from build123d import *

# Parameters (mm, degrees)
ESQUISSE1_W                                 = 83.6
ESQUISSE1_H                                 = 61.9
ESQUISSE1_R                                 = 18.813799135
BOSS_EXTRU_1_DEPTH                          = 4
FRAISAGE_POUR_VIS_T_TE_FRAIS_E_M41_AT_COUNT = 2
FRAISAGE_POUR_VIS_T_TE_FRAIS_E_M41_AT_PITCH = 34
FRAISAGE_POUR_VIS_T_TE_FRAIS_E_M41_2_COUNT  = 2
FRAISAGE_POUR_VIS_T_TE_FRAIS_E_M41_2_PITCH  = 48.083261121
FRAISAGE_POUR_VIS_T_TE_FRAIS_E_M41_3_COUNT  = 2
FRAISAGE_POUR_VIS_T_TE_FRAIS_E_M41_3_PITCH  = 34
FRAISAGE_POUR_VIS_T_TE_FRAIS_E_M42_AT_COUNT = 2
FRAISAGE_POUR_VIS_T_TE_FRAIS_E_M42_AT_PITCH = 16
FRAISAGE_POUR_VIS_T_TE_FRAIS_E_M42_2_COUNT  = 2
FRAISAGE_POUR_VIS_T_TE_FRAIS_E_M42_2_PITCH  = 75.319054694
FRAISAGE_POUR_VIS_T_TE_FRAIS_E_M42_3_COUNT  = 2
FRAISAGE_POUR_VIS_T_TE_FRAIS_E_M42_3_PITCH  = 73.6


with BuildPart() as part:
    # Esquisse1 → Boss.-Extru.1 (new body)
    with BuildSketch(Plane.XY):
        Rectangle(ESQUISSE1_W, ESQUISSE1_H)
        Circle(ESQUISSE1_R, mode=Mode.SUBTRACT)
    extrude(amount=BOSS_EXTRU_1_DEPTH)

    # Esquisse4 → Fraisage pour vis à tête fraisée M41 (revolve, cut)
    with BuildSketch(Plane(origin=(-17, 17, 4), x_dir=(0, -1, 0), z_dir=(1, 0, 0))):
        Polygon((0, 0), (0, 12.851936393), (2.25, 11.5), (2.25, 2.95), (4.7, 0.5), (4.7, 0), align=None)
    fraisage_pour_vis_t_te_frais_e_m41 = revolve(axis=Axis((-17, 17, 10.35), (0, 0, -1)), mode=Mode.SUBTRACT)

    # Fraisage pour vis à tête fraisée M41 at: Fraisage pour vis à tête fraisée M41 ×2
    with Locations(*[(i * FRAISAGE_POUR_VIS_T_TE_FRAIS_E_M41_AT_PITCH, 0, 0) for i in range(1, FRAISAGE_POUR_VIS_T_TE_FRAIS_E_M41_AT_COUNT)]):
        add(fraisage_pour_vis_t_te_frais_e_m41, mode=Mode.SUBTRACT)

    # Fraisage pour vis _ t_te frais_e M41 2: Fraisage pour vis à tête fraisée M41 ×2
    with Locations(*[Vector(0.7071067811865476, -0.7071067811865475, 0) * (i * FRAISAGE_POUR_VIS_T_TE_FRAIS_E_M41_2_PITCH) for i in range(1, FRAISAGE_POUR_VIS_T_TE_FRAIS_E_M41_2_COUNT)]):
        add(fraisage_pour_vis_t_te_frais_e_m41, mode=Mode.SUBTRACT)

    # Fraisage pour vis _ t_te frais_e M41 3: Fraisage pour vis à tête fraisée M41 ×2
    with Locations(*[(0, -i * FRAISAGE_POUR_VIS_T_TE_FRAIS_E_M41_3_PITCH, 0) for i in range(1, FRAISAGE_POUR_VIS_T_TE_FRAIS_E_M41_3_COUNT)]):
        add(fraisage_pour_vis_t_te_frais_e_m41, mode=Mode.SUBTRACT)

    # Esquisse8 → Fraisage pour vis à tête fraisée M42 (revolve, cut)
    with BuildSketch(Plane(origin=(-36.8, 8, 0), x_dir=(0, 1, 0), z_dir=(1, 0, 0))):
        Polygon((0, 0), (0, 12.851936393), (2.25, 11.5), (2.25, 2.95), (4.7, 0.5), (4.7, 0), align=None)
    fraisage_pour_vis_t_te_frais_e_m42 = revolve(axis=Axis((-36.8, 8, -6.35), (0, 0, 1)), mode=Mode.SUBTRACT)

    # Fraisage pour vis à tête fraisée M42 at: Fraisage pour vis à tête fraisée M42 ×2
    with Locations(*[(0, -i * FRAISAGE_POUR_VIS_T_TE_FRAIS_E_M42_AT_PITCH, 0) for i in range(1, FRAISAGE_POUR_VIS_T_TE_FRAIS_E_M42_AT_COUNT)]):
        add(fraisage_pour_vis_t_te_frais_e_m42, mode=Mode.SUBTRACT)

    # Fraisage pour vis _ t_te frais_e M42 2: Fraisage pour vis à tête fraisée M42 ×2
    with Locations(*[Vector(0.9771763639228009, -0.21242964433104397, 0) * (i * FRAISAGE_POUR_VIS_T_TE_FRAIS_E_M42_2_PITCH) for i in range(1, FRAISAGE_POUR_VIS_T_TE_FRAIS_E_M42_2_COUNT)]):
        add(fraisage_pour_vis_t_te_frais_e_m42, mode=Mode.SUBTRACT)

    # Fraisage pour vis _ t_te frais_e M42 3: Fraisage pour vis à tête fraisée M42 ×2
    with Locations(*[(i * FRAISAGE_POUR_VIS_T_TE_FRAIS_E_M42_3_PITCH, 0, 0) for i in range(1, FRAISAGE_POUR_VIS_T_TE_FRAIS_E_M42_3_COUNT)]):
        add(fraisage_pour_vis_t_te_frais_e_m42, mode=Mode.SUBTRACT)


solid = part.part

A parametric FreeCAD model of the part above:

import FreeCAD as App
import Part
import Sketcher
Q = App.Units.Quantity


def add_polygon(sketch, points):
    """Adds a closed chain of lines whose ends are joined by coincident constraints."""
    first, n = sketch.GeometryCount, len(points)
    for a, b in zip(points, points[1:] + points[:1]):
        sketch.addGeometry(Part.LineSegment(App.Vector(*a, 0), App.Vector(*b, 0)), False)
    for i in range(n):
        sketch.addConstraint(Sketcher.Constraint("Coincident", first + i, 2, first + (i + 1) % n, 1))

doc = App.newDocument("Part")
body = doc.addObject("PartDesign::Body", "Body")

# Sketch on XY plane
sketch1 = body.newObject("Sketcher::SketchObject", "Sketch")
sketch1.AttachmentSupport = (doc.getObject("XY_Plane"), [""])
sketch1.MapMode = "FlatFace"
add_polygon(sketch1, [(-42, 31), (-42, -31), (42, -31), (42, 31)])  # lines 0-3
sketch1.addGeometry(Part.Circle(App.Vector(0, 0, 0), App.Vector(0, 0, 1), 19), False)  # 4
sketch1.addConstraint([
    Sketcher.Constraint("Vertical", 0),
    Sketcher.Constraint("Horizontal", 1),
    Sketcher.Constraint("Vertical", 2),
    Sketcher.Constraint("Horizontal", 3),
    Sketcher.Constraint("Coincident", 4, 3, -1, 1),
    Sketcher.Constraint("Symmetric", 0, 2, 2, 2, -1, 1),
    Sketcher.Constraint("DistanceX", 1, 1, 1, 2, 83.6),
    Sketcher.Constraint("DistanceY", 0, 2, 0, 1, 61.9),
    Sketcher.Constraint("Diameter", 4, 37.627598),
])
pad1 = body.newObject("PartDesign::Pad", "Pad")
pad1.Profile = sketch1
pad1.Length = 4

# Sketch on YZ plane
sketch2 = body.newObject("Sketcher::SketchObject", "Sketch001")
sketch2.AttachmentSupport = (doc.getObject("YZ_Plane"), [""])
sketch2.MapMode = "FlatFace"
sketch2.AttachmentOffset = App.Placement(App.Vector(0, 0, -17), App.Rotation())
add_polygon(sketch2, [(17, -8.9), (17, 4), (12.3, 4), (12.3, 3.5), (14.8, 1.1), (14.8, -7.5)])  # lines 0-5
sketch2.addGeometry(Part.LineSegment(App.Vector(17, 4, 0), App.Vector(17, -8.9, 0)), True)  # axis
sketch2.addConstraint([
    Sketcher.Constraint("Vertical", 0),
    Sketcher.Constraint("Horizontal", 1),
    Sketcher.Constraint("Vertical", 2),
    Sketcher.Constraint("Vertical", 4),
    Sketcher.Constraint("Vertical", 6),
    Sketcher.Constraint("Coincident", 6, 1, 0, 2),
    Sketcher.Constraint("Equal", 0, 6),
    Sketcher.Constraint("Angle", 3, Q("-45 deg")),
    Sketcher.Constraint("Angle", 5, Q("-31 deg")),
    Sketcher.Constraint("DistanceX", 1, 2, 1, 1, 4.7),
    Sketcher.Constraint("DistanceY", 2, 2, 2, 1, 0.5),
    Sketcher.Constraint("DistanceX", -1, 1, 0, 2, 17.0),
    Sketcher.Constraint("DistanceY", -1, 1, 0, 2, 4.0),
    Sketcher.Constraint("DistanceY", 4, 2, 2, 2, 11.0),
    Sketcher.Constraint("DistanceY", 4, 2, 4, 1, 8.55),
])
groove = body.newObject("PartDesign::Groove", "Groove")
groove.Profile = sketch2
groove.ReferenceAxis = (sketch2, ["Axis0"])
groove.Angle = 360
doc.recompute()

linearpattern = body.newObject("PartDesign::LinearPattern", "LinearPattern")
linearpattern.Originals = [groove]
linearpattern.Direction = (doc.getObject("X_Axis"), [""])
linearpattern.Mode = "offset"
linearpattern.Offset = 34
linearpattern.Occurrences = 2
body.Tip = linearpattern
doc.recompute()

datumline = body.newObject("PartDesign::Line", "DatumLine")
datumline.Placement = App.Placement(App.Vector(0, 0, 0), App.Rotation(App.Vector(0, 0, 1), App.Vector(0.707106781, -0.707106781, 0)))
linearpattern2 = body.newObject("PartDesign::LinearPattern", "LinearPattern001")
linearpattern2.Originals = [groove]
linearpattern2.Direction = (datumline, [""])
linearpattern2.Mode = "offset"
linearpattern2.Offset = 48.083261
linearpattern2.Occurrences = 2
body.Tip = linearpattern2
doc.recompute()

linearpattern3 = body.newObject("PartDesign::LinearPattern", "LinearPattern002")
linearpattern3.Originals = [groove]
linearpattern3.Direction = (doc.getObject("Y_Axis"), [""])
linearpattern3.Mode = "offset"
linearpattern3.Offset = 34
linearpattern3.Occurrences = 2
linearpattern3.Reversed = True
body.Tip = linearpattern3

# Sketch on YZ plane
sketch3 = body.newObject("Sketcher::SketchObject", "Sketch002")
sketch3.AttachmentSupport = (doc.getObject("YZ_Plane"), [""])
sketch3.MapMode = "FlatFace"
sketch3.AttachmentOffset = App.Placement(App.Vector(0, 0, -36.8), App.Rotation())
add_polygon(sketch3, [(8, 12.9), (8, 0), (12.7, 0), (12.7, 0.5), (10.2, 3), (10.2, 11.5)])  # lines 0-5
sketch3.addGeometry(Part.LineSegment(App.Vector(8, 0, 0), App.Vector(8, 12.9, 0)), True)  # axis
sketch3.addConstraint([
    Sketcher.Constraint("Vertical", 0),
    Sketcher.Constraint("Horizontal", 1),
    Sketcher.Constraint("Vertical", 2),
    Sketcher.Constraint("Vertical", 4),
    Sketcher.Constraint("Vertical", 6),
    Sketcher.Constraint("Coincident", 6, 1, 0, 2),
    Sketcher.Constraint("PointOnObject", 0, 2, -1),
    Sketcher.Constraint("Equal", 0, 6),
    Sketcher.Constraint("Angle", 3, Q("135 deg")),
    Sketcher.Constraint("Angle", 5, Q("149 deg")),
    Sketcher.Constraint("DistanceX", 1, 1, 1, 2, 4.7),
    Sketcher.Constraint("DistanceY", 2, 1, 2, 2, 0.5),
    Sketcher.Constraint("DistanceX", -1, 1, 0, 2, 8.0),
    Sketcher.Constraint("DistanceY", 2, 2, 4, 2, 11.0),
    Sketcher.Constraint("DistanceY", 4, 1, 4, 2, 8.55),
])
groove2 = body.newObject("PartDesign::Groove", "Groove001")
groove2.Profile = sketch3
groove2.ReferenceAxis = (sketch3, ["Axis0"])
groove2.Angle = 360
doc.recompute()

linearpattern4 = body.newObject("PartDesign::LinearPattern", "LinearPattern003")
linearpattern4.Originals = [groove2]
linearpattern4.Direction = (doc.getObject("Y_Axis"), [""])
linearpattern4.Mode = "offset"
linearpattern4.Offset = 16
linearpattern4.Occurrences = 2
linearpattern4.Reversed = True
body.Tip = linearpattern4
doc.recompute()

datumline2 = body.newObject("PartDesign::Line", "DatumLine001")
datumline2.Placement = App.Placement(App.Vector(0, 0, 0), App.Rotation(App.Vector(0, 0, 1), App.Vector(0.977176364, -0.212429644, 0)))
linearpattern5 = body.newObject("PartDesign::LinearPattern", "LinearPattern004")
linearpattern5.Originals = [groove2]
linearpattern5.Direction = (datumline2, [""])
linearpattern5.Mode = "offset"
linearpattern5.Offset = 75.319055
linearpattern5.Occurrences = 2
body.Tip = linearpattern5
doc.recompute()

linearpattern6 = body.newObject("PartDesign::LinearPattern", "LinearPattern005")
linearpattern6.Originals = [groove2]
linearpattern6.Direction = (doc.getObject("X_Axis"), [""])
linearpattern6.Mode = "offset"
linearpattern6.Offset = 73.6
linearpattern6.Occurrences = 2
body.Tip = linearpattern6

doc.recompute()
